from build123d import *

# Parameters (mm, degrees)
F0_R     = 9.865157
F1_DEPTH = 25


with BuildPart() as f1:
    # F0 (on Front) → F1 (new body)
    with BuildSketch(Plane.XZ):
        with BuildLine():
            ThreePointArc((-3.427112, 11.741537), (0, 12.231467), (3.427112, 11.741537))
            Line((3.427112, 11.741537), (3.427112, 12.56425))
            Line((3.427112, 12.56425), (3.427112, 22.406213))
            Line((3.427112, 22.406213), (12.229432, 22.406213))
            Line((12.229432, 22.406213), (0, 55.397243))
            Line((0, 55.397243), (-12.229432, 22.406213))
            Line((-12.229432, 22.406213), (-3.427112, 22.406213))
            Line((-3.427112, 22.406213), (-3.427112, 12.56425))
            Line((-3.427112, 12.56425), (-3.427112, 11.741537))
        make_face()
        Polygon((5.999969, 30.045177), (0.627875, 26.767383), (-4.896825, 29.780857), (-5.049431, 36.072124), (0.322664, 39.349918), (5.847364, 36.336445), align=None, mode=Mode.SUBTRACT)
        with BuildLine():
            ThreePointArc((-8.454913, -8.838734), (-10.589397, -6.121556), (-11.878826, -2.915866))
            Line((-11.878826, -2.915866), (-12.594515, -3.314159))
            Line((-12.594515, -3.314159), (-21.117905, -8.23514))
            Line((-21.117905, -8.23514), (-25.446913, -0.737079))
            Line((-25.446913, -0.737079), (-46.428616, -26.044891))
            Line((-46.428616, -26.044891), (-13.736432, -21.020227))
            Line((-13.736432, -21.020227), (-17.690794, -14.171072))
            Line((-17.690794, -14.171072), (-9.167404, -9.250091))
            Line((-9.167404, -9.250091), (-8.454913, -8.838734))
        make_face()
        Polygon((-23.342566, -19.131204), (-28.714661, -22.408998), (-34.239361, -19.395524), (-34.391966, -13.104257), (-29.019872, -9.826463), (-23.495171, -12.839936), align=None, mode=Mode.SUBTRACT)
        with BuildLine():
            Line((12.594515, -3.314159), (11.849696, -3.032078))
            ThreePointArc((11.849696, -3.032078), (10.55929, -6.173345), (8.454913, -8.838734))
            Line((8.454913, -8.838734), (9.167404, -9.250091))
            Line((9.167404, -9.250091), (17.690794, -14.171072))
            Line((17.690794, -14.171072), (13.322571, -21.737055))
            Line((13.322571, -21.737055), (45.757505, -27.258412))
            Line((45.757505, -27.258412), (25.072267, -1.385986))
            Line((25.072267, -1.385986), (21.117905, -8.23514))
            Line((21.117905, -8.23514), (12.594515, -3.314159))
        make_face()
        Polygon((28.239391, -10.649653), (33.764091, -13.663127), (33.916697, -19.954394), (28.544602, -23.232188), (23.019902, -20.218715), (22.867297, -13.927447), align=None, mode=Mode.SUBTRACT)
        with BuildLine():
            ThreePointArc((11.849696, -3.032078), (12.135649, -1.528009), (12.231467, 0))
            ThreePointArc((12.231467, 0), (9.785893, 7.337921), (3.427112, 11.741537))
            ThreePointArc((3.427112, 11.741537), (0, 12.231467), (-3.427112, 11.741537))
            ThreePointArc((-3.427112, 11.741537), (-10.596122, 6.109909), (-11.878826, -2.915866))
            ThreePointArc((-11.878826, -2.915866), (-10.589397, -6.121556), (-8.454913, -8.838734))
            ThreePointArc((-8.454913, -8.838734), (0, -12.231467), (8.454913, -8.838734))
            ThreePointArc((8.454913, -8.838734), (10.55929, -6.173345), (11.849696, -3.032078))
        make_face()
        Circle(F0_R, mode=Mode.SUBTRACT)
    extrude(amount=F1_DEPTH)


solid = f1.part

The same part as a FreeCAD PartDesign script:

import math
import FreeCAD as App
import Part
import Sketcher
from FreeCAD import Vector
Q = App.Units.Quantity

doc = App.newDocument("Part")
body = doc.addObject("PartDesign::Body", "Body")

# Sketch on XZ plane
sketch1 = body.newObject("Sketcher::SketchObject", "Sketch")
sketch1.AttachmentSupport = (doc.getObject("XZ_Plane"), [""])
sketch1.MapMode = "FlatFace"
sketch1.addGeometry(Part.LineSegment(Vector(-3.427112, 22.406213, 0), Vector(-3.427112, 11.741537, 0)), False)
sketch1.addGeometry(Part.ArcOfCircle(Part.Circle(Vector(-0.000001, 0.000001, 0), Vector(0, 0, 1), 12.231466), math.radians(106.271432), math.radians(193.791571)), False)
sketch1.addGeometry(Part.LineSegment(Vector(-11.878826, -2.915866, 0), Vector(-12.594515, -3.314159, 0)), False)
sketch1.addGeometry(Part.LineSegment(Vector(-12.594515, -3.314159, 0), Vector(-21.117905, -8.23514, 0)), False)
sketch1.addGeometry(Part.LineSegment(Vector(-21.117905, -8.23514, 0), Vector(-25.446913, -0.737079, 0)), False)
sketch1.addGeometry(Part.LineSegment(Vector(-25.446913, -0.737079, 0), Vector(-46.428616, -26.044891, 0)), False)
sketch1.addGeometry(Part.LineSegment(Vector(-46.428616, -26.044891, 0), Vector(-13.736432, -21.020227, 0)), False)
sketch1.addGeometry(Part.LineSegment(Vector(-13.736432, -21.020227, 0), Vector(-17.690794, -14.171072, 0)), False)
sketch1.addGeometry(Part.LineSegment(Vector(-17.690794, -14.171072, 0), Vector(-9.167404, -9.250091, 0)), False)
sketch1.addGeometry(Part.LineSegment(Vector(-9.167404, -9.250091, 0), Vector(-8.454913, -8.838734, 0)), False)
sketch1.addGeometry(Part.ArcOfCircle(Part.Circle(Vector(0, -0.000002, 0), Vector(0, 0, 1), 12.231465), math.radians(-133.728573), math.radians(-46.271427)), False)
sketch1.addGeometry(Part.LineSegment(Vector(8.454913, -8.838734, 0), Vector(9.167404, -9.250091, 0)), False)
sketch1.addGeometry(Part.LineSegment(Vector(9.167404, -9.250091, 0), Vector(17.690794, -14.171072, 0)), False)
sketch1.addGeometry(Part.LineSegment(Vector(17.690794, -14.171072, 0), Vector(13.322571, -21.737055, 0)), False)
sketch1.addGeometry(Part.LineSegment(Vector(13.322571, -21.737055, 0), Vector(45.757505, -27.258412, 0)), False)
sketch1.addGeometry(Part.LineSegment(Vector(45.757505, -27.258412, 0), Vector(25.072267, -1.385986, 0)), False)
sketch1.addGeometry(Part.LineSegment(Vector(25.072267, -1.385986, 0), Vector(21.117905, -8.23514, 0)), False)
sketch1.addGeometry(Part.LineSegment(Vector(21.117905, -8.23514, 0), Vector(12.594515, -3.314159, 0)), False)
sketch1.addGeometry(Part.LineSegment(Vector(12.594515, -3.314159, 0), Vector(11.849696, -3.032078, 0)), False)
sketch1.addGeometry(Part.ArcOfCircle(Part.Circle(Vector(-0.000003, -0.000001, 0), Vector(0, 0, 1), 12.23147), math.radians(-14.352776), math.radians(0.000004)), False)
sketch1.addGeometry(Part.ArcOfCircle(Part.Circle(Vector(0, 0, 0), Vector(0, 0, 1), 12.231467), math.radians(0), math.radians(73.728566)), False)
sketch1.addGeometry(Part.LineSegment(Vector(3.427112, 11.741537, 0), Vector(3.427112, 22.406213, 0)), False)
sketch1.addGeometry(Part.LineSegment(Vector(3.427112, 22.406213, 0), Vector(12.229432, 22.406213, 0)), False)
sketch1.addGeometry(Part.LineSegment(Vector(12.229432, 22.406213, 0), Vector(0, 55.397243, 0)), False)
sketch1.addGeometry(Part.LineSegment(Vector(0, 55.397243, 0), Vector(-12.229432, 22.406213, 0)), False)
sketch1.addGeometry(Part.LineSegment(Vector(-12.229432, 22.406213, 0), Vector(-3.427112, 22.406213, 0)), False)
sketch1.addGeometry(Part.LineSegment(Vector(-23.342566, -19.131204, 0), Vector(-28.714661, -22.408998, 0)), False)
sketch1.addGeometry(Part.LineSegment(Vector(-28.714661, -22.408998, 0), Vector(-34.239361, -19.395524, 0)), False)
sketch1.addGeometry(Part.LineSegment(Vector(-34.239361, -19.395524, 0), Vector(-34.391966, -13.104257, 0)), False)
sketch1.addGeometry(Part.LineSegment(Vector(-34.391966, -13.104257, 0), Vector(-29.019872, -9.826463, 0)), False)
sketch1.addGeometry(Part.LineSegment(Vector(-29.019872, -9.826463, 0), Vector(-23.495171, -12.839936, 0)), False)
sketch1.addGeometry(Part.LineSegment(Vector(-23.495171, -12.839936, 0), Vector(-23.342566, -19.131204, 0)), False)
sketch1.addGeometry(Part.LineSegment(Vector(28.239391, -10.649653, 0), Vector(33.764091, -13.663127, 0)), False)
sketch1.addGeometry(Part.LineSegment(Vector(33.764091, -13.663127, 0), Vector(33.916697, -19.954394, 0)), False)
sketch1.addGeometry(Part.LineSegment(Vector(33.916697, -19.954394, 0), Vector(28.544602, -23.232188, 0)), False)
sketch1.addGeometry(Part.LineSegment(Vector(28.544602, -23.232188, 0), Vector(23.019902, -20.218715, 0)), False)
sketch1.addGeometry(Part.LineSegment(Vector(23.019902, -20.218715, 0), Vector(22.867297, -13.927447, 0)), False)
sketch1.addGeometry(Part.LineSegment(Vector(22.867297, -13.927447, 0), Vector(28.239391, -10.649653, 0)), False)
sketch1.addGeometry(Part.Circle(Vector(0, 0, 0), Vector(0, 0, 1), 9.865157), False)
sketch1.addGeometry(Part.LineSegment(Vector(5.847364, 36.336445, 0), Vector(5.999969, 30.045177, 0)), False)
sketch1.addGeometry(Part.LineSegment(Vector(5.999969, 30.045177, 0), Vector(0.627875, 26.767383, 0)), False)
sketch1.addGeometry(Part.LineSegment(Vector(0.627875, 26.767383, 0), Vector(-4.896825, 29.780857, 0)), False)
sketch1.addGeometry(Part.LineSegment(Vector(-4.896825, 29.780857, 0), Vector(-5.049431, 36.072124, 0)), False)
sketch1.addGeometry(Part.LineSegment(Vector(-5.049431, 36.072124, 0), Vector(0.322664, 39.349918, 0)), False)
sketch1.addGeometry(Part.LineSegment(Vector(0.322664, 39.349918, 0), Vector(5.847364, 36.336445, 0)), False)
sketch1.addConstraint(Sketcher.Constraint("Coincident", 0, 2, 1, 1))
sketch1.addConstraint(Sketcher.Constraint("Coincident", 1, 2, 2, 1))
sketch1.addConstraint(Sketcher.Constraint("Coincident", 2, 2, 3, 1))
sketch1.addConstraint(Sketcher.Constraint("Coincident", 3, 2, 4, 1))
sketch1.addConstraint(Sketcher.Constraint("Coincident", 4, 2, 5, 1))
sketch1.addConstraint(Sketcher.Constraint("Coincident", 5, 2, 6, 1))
sketch1.addConstraint(Sketcher.Constraint("Coincident", 6, 2, 7, 1))
sketch1.addConstraint(Sketcher.Constraint("Coincident", 7, 2, 8, 1))
sketch1.addConstraint(Sketcher.Constraint("Coincident", 8, 2, 9, 1))
sketch1.addConstraint(Sketcher.Constraint("Coincident", 9, 2, 10, 1))
sketch1.addConstraint(Sketcher.Constraint("Coincident", 10, 2, 11, 1))
sketch1.addConstraint(Sketcher.Constraint("Coincident", 11, 2, 12, 1))
sketch1.addConstraint(Sketcher.Constraint("Coincident", 12, 2, 13, 1))
sketch1.addConstraint(Sketcher.Constraint("Coincident", 13, 2, 14, 1))
sketch1.addConstraint(Sketcher.Constraint("Coincident", 14, 2, 15, 1))
sketch1.addConstraint(Sketcher.Constraint("Coincident", 15, 2, 16, 1))
sketch1.addConstraint(Sketcher.Constraint("Coincident", 16, 2, 17, 1))
sketch1.addConstraint(Sketcher.Constraint("Coincident", 17, 2, 18, 1))
sketch1.addConstraint(Sketcher.Constraint("Coincident", 18, 2, 19, 1))
sketch1.addConstraint(Sketcher.Constraint("Tangent", 19, 2, 20, 1))
sketch1.addConstraint(Sketcher.Constraint("Coincident", 20, 2, 21, 1))
sketch1.addConstraint(Sketcher.Constraint("Coincident", 21, 2, 22, 1))
sketch1.addConstraint(Sketcher.Constraint("Coincident", 22, 2, 23, 1))
sketch1.addConstraint(Sketcher.Constraint("Coincident", 23, 2, 24, 1))
sketch1.addConstraint(Sketcher.Constraint("Coincident", 24, 2, 25, 1))
sketch1.addConstraint(Sketcher.Constraint("Coincident", 25, 2, 0, 1))
sketch1.addConstraint(Sketcher.Constraint("Coincident", 26, 2, 27, 1))
sketch1.addConstraint(Sketcher.Constraint("Coincident", 27, 2, 28, 1))
sketch1.addConstraint(Sketcher.Constraint("Coincident", 28, 2, 29, 1))
sketch1.addConstraint(Sketcher.Constraint("Coincident", 29, 2, 30, 1))
sketch1.addConstraint(Sketcher.Constraint("Coincident", 30, 2, 31, 1))
sketch1.addConstraint(Sketcher.Constraint("Coincident", 31, 2, 26, 1))
sketch1.addConstraint(Sketcher.Constraint("Coincident", 32, 2, 33, 1))
sketch1.addConstraint(Sketcher.Constraint("Coincident", 33, 2, 34, 1))
sketch1.addConstraint(Sketcher.Constraint("Coincident", 34, 2, 35, 1))
sketch1.addConstraint(Sketcher.Constraint("Coincident", 35, 2, 36, 1))
sketch1.addConstraint(Sketcher.Constraint("Coincident", 36, 2, 37, 1))
sketch1.addConstraint(Sketcher.Constraint("Coincident", 37, 2, 32, 1))
sketch1.addConstraint(Sketcher.Constraint("Coincident", 39, 2, 40, 1))
sketch1.addConstraint(Sketcher.Constraint("Coincident", 40, 2, 41, 1))
sketch1.addConstraint(Sketcher.Constraint("Coincident", 41, 2, 42, 1))
sketch1.addConstraint(Sketcher.Constraint("Coincident", 42, 2, 43, 1))
sketch1.addConstraint(Sketcher.Constraint("Coincident", 43, 2, 44, 1))
sketch1.addConstraint(Sketcher.Constraint("Coincident", 44, 2, 39, 1))
sketch1.addConstraint(Sketcher.Constraint("Vertical", 0))
sketch1.addConstraint(Sketcher.Constraint("Vertical", 21))
sketch1.addConstraint(Sketcher.Constraint("Horizontal", 22))
sketch1.addConstraint(Sketcher.Constraint("Horizontal", 25))
sketch1.addConstraint(Sketcher.Constraint("Coincident", 1, 3, -1, 1))
sketch1.addConstraint(Sketcher.Constraint("Coincident", 10, 3, -1, 1))
sketch1.addConstraint(Sketcher.Constraint("Coincident", 19, 3, -1, 1))
sketch1.addConstraint(Sketcher.Constraint("Coincident", 38, 3, -1, 1))
sketch1.addConstraint(Sketcher.Constraint("Equal", 1, 10))
sketch1.addConstraint(Sketcher.Constraint("Equal", 10, 20))
sketch1.addConstraint(Sketcher.Constraint("Symmetric", 8, 2, 11, 2, -2))
sketch1.addConstraint(Sketcher.Constraint("Symmetric", 7, 2, 12, 2, -2))
sketch1.addConstraint(Sketcher.Constraint("Symmetric", 3, 2, 16, 2, -2))
sketch1.addConstraint(Sketcher.Constraint("Symmetric", 2, 2, 17, 2, -2))
sketch1.addConstraint(Sketcher.Constraint("Symmetric", 0, 2, 20, 2, -2))
sketch1.addConstraint(Sketcher.Constraint("Symmetric", 22, 2, 24, 2, -2))
sketch1.addConstraint(Sketcher.Constraint("PointOnObject", 19, 2, -1))
sketch1.addConstraint(Sketcher.Constraint("PointOnObject", 23, 2, -2))
sketch1.addConstraint(Sketcher.Constraint("Perpendicular", 3, 4))
sketch1.addConstraint(Sketcher.Constraint("Parallel", 4, 7))
sketch1.addConstraint(Sketcher.Constraint("Perpendicular", 7, 8))
sketch1.addConstraint(Sketcher.Constraint("Parallel", 8, 9))
sketch1.addConstraint(Sketcher.Constraint("Parallel", 11, 12))
sketch1.addConstraint(Sketcher.Constraint("Perpendicular", 12, 13))
sketch1.addConstraint(Sketcher.Constraint("Parallel", 13, 16))
sketch1.addConstraint(Sketcher.Constraint("Parallel", 26, 29))
sketch1.addConstraint(Sketcher.Constraint("Parallel", 27, 30))
sketch1.addConstraint(Sketcher.Constraint("Parallel", 28, 31))
sketch1.addConstraint(Sketcher.Constraint("Parallel", 30, 32))
sketch1.addConstraint(Sketcher.Constraint("Parallel", 31, 33))
sketch1.addConstraint(Sketcher.Constraint("Parallel", 29, 34))
sketch1.addConstraint(Sketcher.Constraint("Parallel", 32, 35))
sketch1.addConstraint(Sketcher.Constraint("Parallel", 33, 36))
sketch1.addConstraint(Sketcher.Constraint("Parallel", 34, 37))
sketch1.addConstraint(Sketcher.Constraint("Parallel", 36, 39))
sketch1.addConstraint(Sketcher.Constraint("Parallel", 37, 40))
sketch1.addConstraint(Sketcher.Constraint("Parallel", 35, 41))
sketch1.addConstraint(Sketcher.Constraint("Parallel", 39, 42))
sketch1.addConstraint(Sketcher.Constraint("Parallel", 40, 43))
sketch1.addConstraint(Sketcher.Constraint("Parallel", 41, 44))
sketch1.addConstraint(Sketcher.Constraint("Equal", 3, 8))
sketch1.addConstraint(Sketcher.Constraint("Equal", 7, 16))
sketch1.addConstraint(Sketcher.Constraint("Equal", 26, 27))
sketch1.addConstraint(Sketcher.Constraint("Equal", 27, 28))
sketch1.addConstraint(Sketcher.Constraint("Equal", 28, 29))
sketch1.addConstraint(Sketcher.Constraint("Equal", 31, 32))
sketch1.addConstraint(Sketcher.Constraint("Equal", 32, 33))
sketch1.addConstraint(Sketcher.Constraint("Equal", 33, 34))
sketch1.addConstraint(Sketcher.Constraint("Equal", 34, 35))
sketch1.addConstraint(Sketcher.Constraint("Equal", 37, 39))
sketch1.addConstraint(Sketcher.Constraint("Equal", 39, 40))
sketch1.addConstraint(Sketcher.Constraint("Equal", 40, 41))
sketch1.addConstraint(Sketcher.Constraint("Equal", 41, 42))
sketch1.addConstraint(Sketcher.Constraint("Angle", 3, Q("-150.000003 deg")))
sketch1.addConstraint(Sketcher.Constraint("Radius", 19, 12.23147))
sketch1.addConstraint(Sketcher.Constraint("DistanceX", 24, 2, 42, 2, 7.180001))
sketch1.addConstraint(Sketcher.Constraint("Diameter", 38, 19.730314))
sketch1.addConstraint(Sketcher.Constraint("DistanceY", 26, 2, -1, 1, 22.408998))
sketch1.addConstraint(Sketcher.Constraint("DistanceX", 22, 1, 22, 2, 8.80232))
sketch1.addConstraint(Sketcher.Constraint("DistanceX", -1, 1, 35, 2, 23.019902))
sketch1.addConstraint(Sketcher.Constraint("DistanceX", 4, 2, 0, 2, 22.019801))
sketch1.addConstraint(Sketcher.Constraint("DistanceX", 5, 2, 2, 2, 33.834101))
sketch1.addConstraint(Sketcher.Constraint("DistanceX", 3, 2, 8, 2, 11.950501))
sketch1.addConstraint(Sketcher.Constraint("DistanceX", 11, 2, 14, 2, 36.590101))
sketch1.addConstraint(Sketcher.Constraint("DistanceX", 10, 2, 17, 2, 4.139602))
sketch1.addConstraint(Sketcher.Constraint("DistanceX", 27, 2, 26, 2, 5.5247))
sketch1.addConstraint(Sketcher.Constraint("DistanceX", 24, 2, 39, 2, 18.229401))
sketch1.addConstraint(Sketcher.Constraint("Distance", 26, 6.293118))
sketch1.addConstraint(Sketcher.Constraint("DistanceY", 0, 2, 0, 1, 10.664676))
sketch1.addConstraint(Sketcher.Constraint("DistanceY", 2, 2, -1, 1, 3.314159))
sketch1.addConstraint(Sketcher.Constraint("DistanceY", 3, 2, -1, 1, 8.23514))
sketch1.addConstraint(Sketcher.Constraint("DistanceY", 4, 2, -1, 1, 0.737079))
sketch1.addConstraint(Sketcher.Constraint("DistanceY", 5, 2, -1, 1, 26.044891))
sketch1.addConstraint(Sketcher.Constraint("DistanceY", 8, 2, -1, 1, 9.250091))
sketch1.addConstraint(Sketcher.Constraint("DistanceX", -1, 1, 13, 2, 13.322571))
sketch1.addConstraint(Sketcher.Constraint("DistanceY", 14, 2, -1, 1, 27.258412))
sketch1.addConstraint(Sketcher.Constraint("DistanceX", 26, 2, -1, 1, 28.714661))
sketch1.addConstraint(Sketcher.Constraint("DistanceX", 29, 2, -1, 1, 29.019872))
sketch1.addConstraint(Sketcher.Constraint("DistanceY", 34, 2, -1, 1, 23.232188))
sketch1.addConstraint(Sketcher.Constraint("DistanceY", -1, 1, 43, 2, 39.349918))
sketch1.addConstraint(Sketcher.Constraint("DistanceX", 2, 2, 1, 2, 0.715689))
sketch1.addConstraint(Sketcher.Constraint("DistanceY", 6, 2, 1, 2, 18.104361))
sketch1.addConstraint(Sketcher.Constraint("DistanceX", 18, 2, 17, 2, 0.744819))
sketch1.addConstraint(Sketcher.Constraint("DistanceY", 21, 2, 23, 2, 32.99103))
pad1 = body.newObject("PartDesign::Pad", "Pad")
pad1.Profile = sketch1
pad1.Length = 25

doc.recompute()
